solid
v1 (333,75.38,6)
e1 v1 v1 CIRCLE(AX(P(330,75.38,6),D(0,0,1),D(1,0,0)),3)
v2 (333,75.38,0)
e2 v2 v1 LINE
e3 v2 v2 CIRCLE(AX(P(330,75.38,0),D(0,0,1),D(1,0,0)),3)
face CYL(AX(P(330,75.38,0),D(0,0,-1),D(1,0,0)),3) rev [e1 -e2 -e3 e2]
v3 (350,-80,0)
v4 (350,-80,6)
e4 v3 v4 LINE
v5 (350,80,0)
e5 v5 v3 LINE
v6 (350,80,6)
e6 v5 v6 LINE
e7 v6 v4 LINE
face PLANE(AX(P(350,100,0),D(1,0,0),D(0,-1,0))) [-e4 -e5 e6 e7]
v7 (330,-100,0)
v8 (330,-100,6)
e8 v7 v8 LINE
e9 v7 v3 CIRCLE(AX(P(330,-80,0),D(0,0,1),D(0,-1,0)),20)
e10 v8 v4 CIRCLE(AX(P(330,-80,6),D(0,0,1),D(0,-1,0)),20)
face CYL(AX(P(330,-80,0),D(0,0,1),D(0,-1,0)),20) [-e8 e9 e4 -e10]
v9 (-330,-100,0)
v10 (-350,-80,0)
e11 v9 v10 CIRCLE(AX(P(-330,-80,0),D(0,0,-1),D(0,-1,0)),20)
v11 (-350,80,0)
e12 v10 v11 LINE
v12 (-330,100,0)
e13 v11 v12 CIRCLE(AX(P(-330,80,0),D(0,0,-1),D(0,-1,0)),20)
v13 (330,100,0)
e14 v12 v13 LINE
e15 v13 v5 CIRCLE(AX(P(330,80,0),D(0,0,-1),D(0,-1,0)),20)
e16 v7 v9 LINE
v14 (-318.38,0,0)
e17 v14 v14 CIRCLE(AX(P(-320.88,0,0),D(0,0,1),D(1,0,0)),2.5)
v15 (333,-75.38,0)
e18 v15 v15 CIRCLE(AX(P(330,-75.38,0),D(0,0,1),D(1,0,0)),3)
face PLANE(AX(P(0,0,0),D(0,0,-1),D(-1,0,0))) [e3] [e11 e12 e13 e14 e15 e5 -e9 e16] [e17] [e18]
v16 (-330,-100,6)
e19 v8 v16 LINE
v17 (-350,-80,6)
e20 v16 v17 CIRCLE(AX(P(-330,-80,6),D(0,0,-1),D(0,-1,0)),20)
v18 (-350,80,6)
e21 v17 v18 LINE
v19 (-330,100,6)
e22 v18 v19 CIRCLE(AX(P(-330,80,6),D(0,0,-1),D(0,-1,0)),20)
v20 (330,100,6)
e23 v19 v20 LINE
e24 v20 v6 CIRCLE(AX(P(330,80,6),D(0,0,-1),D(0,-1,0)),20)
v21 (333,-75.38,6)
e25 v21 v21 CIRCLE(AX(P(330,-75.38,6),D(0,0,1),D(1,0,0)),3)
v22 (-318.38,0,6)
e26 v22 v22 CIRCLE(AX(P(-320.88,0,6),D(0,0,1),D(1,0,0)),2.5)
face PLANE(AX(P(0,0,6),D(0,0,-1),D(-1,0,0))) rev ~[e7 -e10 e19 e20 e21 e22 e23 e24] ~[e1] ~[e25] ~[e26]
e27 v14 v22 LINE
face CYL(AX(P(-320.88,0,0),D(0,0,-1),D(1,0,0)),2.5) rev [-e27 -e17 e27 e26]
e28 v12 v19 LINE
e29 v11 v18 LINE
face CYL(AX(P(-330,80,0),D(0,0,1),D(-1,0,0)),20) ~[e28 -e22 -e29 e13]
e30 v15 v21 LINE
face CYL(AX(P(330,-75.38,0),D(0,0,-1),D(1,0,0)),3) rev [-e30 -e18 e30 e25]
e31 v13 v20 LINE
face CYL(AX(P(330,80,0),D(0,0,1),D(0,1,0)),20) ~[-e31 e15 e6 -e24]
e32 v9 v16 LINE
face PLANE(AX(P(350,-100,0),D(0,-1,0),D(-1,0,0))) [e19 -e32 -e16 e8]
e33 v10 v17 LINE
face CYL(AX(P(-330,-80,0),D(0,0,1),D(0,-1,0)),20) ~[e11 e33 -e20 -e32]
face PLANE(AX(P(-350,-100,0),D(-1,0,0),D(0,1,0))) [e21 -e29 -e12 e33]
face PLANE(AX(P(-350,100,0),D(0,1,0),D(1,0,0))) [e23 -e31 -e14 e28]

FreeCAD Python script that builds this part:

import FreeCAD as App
import Part
import Sketcher
from FreeCAD import Vector


def edges_at(feature, points):
    """Names of the edges that pass closest to the given points."""
    edges = feature.Shape.Edges
    near = lambda p: min(range(len(edges)), key=lambda i: edges[i].distToShape(Part.Vertex(*p))[0])
    return sorted({f"Edge{near(p) + 1}" for p in points})

doc = App.newDocument("Part")
body = doc.addObject("PartDesign::Body", "Body")

sketch1 = body.newObject("Sketcher::SketchObject", "Sketch")
sketch1.AttachmentSupport = (doc.getObject("XY_Plane"), [""])
sketch1.MapMode = "FlatFace"
sketch1.addGeometry(Part.LineSegment(Vector(-350, -100, 0), Vector(350, -100, 0)), False)
sketch1.addGeometry(Part.LineSegment(Vector(350, -100, 0), Vector(350, 100, 0)), False)
sketch1.addGeometry(Part.LineSegment(Vector(350, 100, 0), Vector(-350, 100, 0)), False)
sketch1.addGeometry(Part.LineSegment(Vector(-350, 100, 0), Vector(-350, -100, 0)), False)
sketch1.addGeometry(Part.Circle(Vector(330, -75.4, 0), Vector(0, 0, 1), 3), False)
sketch1.addGeometry(Part.Circle(Vector(-320.9, 0, 0), Vector(0, 0, 1), 2.5), False)
sketch1.addGeometry(Part.Circle(Vector(330, 75.4, 0), Vector(0, 0, 1), 3), False)
sketch1.addConstraint(Sketcher.Constraint("Coincident", 0, 2, 1, 1))
sketch1.addConstraint(Sketcher.Constraint("Coincident", 1, 2, 2, 1))
sketch1.addConstraint(Sketcher.Constraint("Coincident", 2, 2, 3, 1))
sketch1.addConstraint(Sketcher.Constraint("Coincident", 3, 2, 0, 1))
sketch1.addConstraint(Sketcher.Constraint("Horizontal", 0))
sketch1.addConstraint(Sketcher.Constraint("Vertical", 1))
sketch1.addConstraint(Sketcher.Constraint("Horizontal", 2))
sketch1.addConstraint(Sketcher.Constraint("Vertical", 3))
sketch1.addConstraint(Sketcher.Constraint("Equal", 4, 6))
sketch1.addConstraint(Sketcher.Constraint("Symmetric", 0, 2, 2, 2, -1, 1))
sketch1.addConstraint(Sketcher.Constraint("Symmetric", 4, 3, 6, 3, -1))
sketch1.addConstraint(Sketcher.Constraint("PointOnObject", 5, 3, -1))
sketch1.addConstraint(Sketcher.Constraint("Diameter", 4, 6.0))
sketch1.addConstraint(Sketcher.Constraint("Diameter", 5, 5.0))
sketch1.addConstraint(Sketcher.Constraint("DistanceX", -1, 1, 0, 2, 350.0))
sketch1.addConstraint(Sketcher.Constraint("DistanceY", 1, 1, 1, 2, 200.0))
sketch1.addConstraint(Sketcher.Constraint("DistanceX", -1, 1, 4, 3, 330.0))
sketch1.addConstraint(Sketcher.Constraint("DistanceY", 4, 3, -1, 1, 75.38))
sketch1.addConstraint(Sketcher.Constraint("DistanceX", 5, 3, -1, 1, 320.88))
pad1 = body.newObject("PartDesign::Pad", "Pad")
pad1.Profile = sketch1
pad1.Length = 6
doc.recompute()

fillet = body.newObject("PartDesign::Fillet", "Fillet")
fillet.Base = (pad1, edges_at(pad1, [
    (-350, -100, 3),
    (-350, 100, 3),
    (350, -100, 3),
    (350, 100, 3),
]))
fillet.Radius = 20

doc.recompute()
